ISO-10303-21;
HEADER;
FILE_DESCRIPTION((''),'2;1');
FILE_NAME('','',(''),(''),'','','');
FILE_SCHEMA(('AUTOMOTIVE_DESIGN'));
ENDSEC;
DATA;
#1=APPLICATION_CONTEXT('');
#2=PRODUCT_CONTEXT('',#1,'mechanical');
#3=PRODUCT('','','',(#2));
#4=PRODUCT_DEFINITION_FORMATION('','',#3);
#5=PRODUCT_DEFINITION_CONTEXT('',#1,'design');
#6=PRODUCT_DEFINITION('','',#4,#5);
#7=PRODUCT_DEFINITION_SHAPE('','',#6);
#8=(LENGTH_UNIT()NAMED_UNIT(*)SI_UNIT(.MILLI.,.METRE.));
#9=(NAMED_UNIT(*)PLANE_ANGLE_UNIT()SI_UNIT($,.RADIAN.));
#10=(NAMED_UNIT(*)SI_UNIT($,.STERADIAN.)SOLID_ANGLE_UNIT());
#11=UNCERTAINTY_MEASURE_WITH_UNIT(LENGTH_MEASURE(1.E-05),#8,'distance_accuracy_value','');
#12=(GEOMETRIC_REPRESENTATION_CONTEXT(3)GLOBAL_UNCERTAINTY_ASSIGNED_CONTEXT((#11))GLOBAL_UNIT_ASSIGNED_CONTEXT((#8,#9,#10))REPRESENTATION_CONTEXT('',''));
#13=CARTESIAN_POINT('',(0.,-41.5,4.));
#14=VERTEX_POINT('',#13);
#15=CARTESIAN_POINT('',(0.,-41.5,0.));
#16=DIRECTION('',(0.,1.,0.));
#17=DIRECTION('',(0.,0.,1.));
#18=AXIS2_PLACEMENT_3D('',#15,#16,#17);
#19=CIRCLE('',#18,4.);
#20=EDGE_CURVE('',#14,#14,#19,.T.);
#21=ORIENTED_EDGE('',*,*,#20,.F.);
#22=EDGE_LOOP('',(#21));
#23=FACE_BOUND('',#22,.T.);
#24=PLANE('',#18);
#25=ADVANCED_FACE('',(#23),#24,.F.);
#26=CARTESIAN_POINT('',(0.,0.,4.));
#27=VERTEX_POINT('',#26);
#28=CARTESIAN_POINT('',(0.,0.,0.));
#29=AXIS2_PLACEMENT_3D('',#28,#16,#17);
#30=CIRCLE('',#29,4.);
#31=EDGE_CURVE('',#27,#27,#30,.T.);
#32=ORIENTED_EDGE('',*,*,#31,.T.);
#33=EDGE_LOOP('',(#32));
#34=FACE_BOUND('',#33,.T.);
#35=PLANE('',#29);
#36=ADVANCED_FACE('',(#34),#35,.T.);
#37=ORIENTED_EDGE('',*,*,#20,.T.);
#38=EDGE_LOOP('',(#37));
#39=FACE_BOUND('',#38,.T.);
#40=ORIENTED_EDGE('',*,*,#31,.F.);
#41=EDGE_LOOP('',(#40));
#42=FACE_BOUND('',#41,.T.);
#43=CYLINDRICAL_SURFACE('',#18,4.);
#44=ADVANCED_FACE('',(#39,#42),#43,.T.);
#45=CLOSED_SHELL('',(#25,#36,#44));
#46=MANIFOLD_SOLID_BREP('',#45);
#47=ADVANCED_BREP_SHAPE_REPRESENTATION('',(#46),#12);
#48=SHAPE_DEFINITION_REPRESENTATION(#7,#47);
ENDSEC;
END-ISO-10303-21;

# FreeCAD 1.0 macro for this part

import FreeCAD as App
import Part
import Sketcher
from FreeCAD import Vector

doc = App.newDocument("Part")
body = doc.addObject("PartDesign::Body", "Body")

# Sketch on XZ plane
sketch1 = body.newObject("Sketcher::SketchObject", "Sketch")
sketch1.AttachmentSupport = (doc.getObject("XZ_Plane"), [""])
sketch1.MapMode = "FlatFace"
sketch1.addGeometry(Part.Circle(Vector(0, 0, 0), Vector(0, 0, 1), 4), False)
sketch1.addConstraint(Sketcher.Constraint("Coincident", 0, 3, -1, 1))
sketch1.addConstraint(Sketcher.Constraint("Diameter", 0, 8.0))
pad1 = body.newObject("PartDesign::Pad", "Pad")
pad1.Profile = sketch1
pad1.Length = 41.5

doc.recompute()
